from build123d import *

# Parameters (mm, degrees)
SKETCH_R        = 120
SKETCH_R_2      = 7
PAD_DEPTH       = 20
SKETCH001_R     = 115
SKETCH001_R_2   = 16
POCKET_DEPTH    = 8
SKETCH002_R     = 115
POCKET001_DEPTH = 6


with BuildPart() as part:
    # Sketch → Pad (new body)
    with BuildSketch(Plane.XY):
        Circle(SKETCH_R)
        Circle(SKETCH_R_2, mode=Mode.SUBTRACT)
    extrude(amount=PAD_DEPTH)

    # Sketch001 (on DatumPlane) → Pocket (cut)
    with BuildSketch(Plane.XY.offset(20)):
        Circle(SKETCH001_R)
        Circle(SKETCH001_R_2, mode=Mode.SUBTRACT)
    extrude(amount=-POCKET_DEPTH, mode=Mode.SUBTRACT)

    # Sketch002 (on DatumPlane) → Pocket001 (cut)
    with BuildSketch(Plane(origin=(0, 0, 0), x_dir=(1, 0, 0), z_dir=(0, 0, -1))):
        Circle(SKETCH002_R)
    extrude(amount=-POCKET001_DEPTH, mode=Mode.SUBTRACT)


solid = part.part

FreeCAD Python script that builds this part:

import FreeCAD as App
import Part
import Sketcher
from FreeCAD import Vector
Q = App.Units.Quantity

doc = App.newDocument("Part")
body = doc.addObject("PartDesign::Body", "Body")

sketch1 = body.newObject("Sketcher::SketchObject", "Sketch")
sketch1.AttachmentSupport = (doc.getObject("XY_Plane"), [""])
sketch1.MapMode = "FlatFace"
sketch1.addGeometry([
    Part.Circle(Vector(0, 0, 0), Vector(0, 0, 1), 120),
    Part.Circle(Vector(0, 0, 0), Vector(0, 0, 1), 7),
], False)
sketch1.addConstraint([
    Sketcher.Constraint("Coincident", 0, 3, -1, 1),
    Sketcher.Constraint("Coincident", 1, 3, -1, 1),
    Sketcher.Constraint("Diameter", 0, Q("240 mm")),
    Sketcher.Constraint("Diameter", 1, Q("14 mm")),
])
pad1 = body.newObject("PartDesign::Pad", "Pad")
pad1.Profile = sketch1
pad1.Length = 20

sketch2 = body.newObject("Sketcher::SketchObject", "Sketch001")
sketch2.AttachmentSupport = (doc.getObject("XY_Plane"), [""])
sketch2.MapMode = "FlatFace"
sketch2.AttachmentOffset = App.Placement(Vector(0, 0, 20), App.Rotation())
sketch2.addGeometry([
    Part.Circle(Vector(0, 0, 0), Vector(0, 0, 1), 115),
    Part.Circle(Vector(0, 0, 0), Vector(0, 0, 1), 16),
], False)
sketch2.addConstraint([
    Sketcher.Constraint("Coincident", 0, 3, -1, 1),
    Sketcher.Constraint("Coincident", 1, 3, -1, 1),
    Sketcher.Constraint("Diameter", 0, Q("230 mm")),
    Sketcher.Constraint("Diameter", 1, Q("32 mm")),
])
pocket1 = body.newObject("PartDesign::Pocket", "Pocket")
pocket1.Profile = sketch2
pocket1.Length = 8

sketch3 = body.newObject("Sketcher::SketchObject", "Sketch002")
sketch3.AttachmentSupport = (doc.getObject("XY_Plane"), [""])
sketch3.MapMode = "FlatFace"
sketch3.addGeometry(Part.Circle(Vector(0, 0, 0), Vector(0, 0, 1), 115), False)
sketch3.addConstraint([
    Sketcher.Constraint("Coincident", 0, 3, -1, 1),
    Sketcher.Constraint("Diameter", 0, Q("230 mm")),
])
pocket2 = body.newObject("PartDesign::Pocket", "Pocket001")
pocket2.Profile = sketch3
pocket2.Length = 6
pocket2.Reversed = True

doc.recompute()
